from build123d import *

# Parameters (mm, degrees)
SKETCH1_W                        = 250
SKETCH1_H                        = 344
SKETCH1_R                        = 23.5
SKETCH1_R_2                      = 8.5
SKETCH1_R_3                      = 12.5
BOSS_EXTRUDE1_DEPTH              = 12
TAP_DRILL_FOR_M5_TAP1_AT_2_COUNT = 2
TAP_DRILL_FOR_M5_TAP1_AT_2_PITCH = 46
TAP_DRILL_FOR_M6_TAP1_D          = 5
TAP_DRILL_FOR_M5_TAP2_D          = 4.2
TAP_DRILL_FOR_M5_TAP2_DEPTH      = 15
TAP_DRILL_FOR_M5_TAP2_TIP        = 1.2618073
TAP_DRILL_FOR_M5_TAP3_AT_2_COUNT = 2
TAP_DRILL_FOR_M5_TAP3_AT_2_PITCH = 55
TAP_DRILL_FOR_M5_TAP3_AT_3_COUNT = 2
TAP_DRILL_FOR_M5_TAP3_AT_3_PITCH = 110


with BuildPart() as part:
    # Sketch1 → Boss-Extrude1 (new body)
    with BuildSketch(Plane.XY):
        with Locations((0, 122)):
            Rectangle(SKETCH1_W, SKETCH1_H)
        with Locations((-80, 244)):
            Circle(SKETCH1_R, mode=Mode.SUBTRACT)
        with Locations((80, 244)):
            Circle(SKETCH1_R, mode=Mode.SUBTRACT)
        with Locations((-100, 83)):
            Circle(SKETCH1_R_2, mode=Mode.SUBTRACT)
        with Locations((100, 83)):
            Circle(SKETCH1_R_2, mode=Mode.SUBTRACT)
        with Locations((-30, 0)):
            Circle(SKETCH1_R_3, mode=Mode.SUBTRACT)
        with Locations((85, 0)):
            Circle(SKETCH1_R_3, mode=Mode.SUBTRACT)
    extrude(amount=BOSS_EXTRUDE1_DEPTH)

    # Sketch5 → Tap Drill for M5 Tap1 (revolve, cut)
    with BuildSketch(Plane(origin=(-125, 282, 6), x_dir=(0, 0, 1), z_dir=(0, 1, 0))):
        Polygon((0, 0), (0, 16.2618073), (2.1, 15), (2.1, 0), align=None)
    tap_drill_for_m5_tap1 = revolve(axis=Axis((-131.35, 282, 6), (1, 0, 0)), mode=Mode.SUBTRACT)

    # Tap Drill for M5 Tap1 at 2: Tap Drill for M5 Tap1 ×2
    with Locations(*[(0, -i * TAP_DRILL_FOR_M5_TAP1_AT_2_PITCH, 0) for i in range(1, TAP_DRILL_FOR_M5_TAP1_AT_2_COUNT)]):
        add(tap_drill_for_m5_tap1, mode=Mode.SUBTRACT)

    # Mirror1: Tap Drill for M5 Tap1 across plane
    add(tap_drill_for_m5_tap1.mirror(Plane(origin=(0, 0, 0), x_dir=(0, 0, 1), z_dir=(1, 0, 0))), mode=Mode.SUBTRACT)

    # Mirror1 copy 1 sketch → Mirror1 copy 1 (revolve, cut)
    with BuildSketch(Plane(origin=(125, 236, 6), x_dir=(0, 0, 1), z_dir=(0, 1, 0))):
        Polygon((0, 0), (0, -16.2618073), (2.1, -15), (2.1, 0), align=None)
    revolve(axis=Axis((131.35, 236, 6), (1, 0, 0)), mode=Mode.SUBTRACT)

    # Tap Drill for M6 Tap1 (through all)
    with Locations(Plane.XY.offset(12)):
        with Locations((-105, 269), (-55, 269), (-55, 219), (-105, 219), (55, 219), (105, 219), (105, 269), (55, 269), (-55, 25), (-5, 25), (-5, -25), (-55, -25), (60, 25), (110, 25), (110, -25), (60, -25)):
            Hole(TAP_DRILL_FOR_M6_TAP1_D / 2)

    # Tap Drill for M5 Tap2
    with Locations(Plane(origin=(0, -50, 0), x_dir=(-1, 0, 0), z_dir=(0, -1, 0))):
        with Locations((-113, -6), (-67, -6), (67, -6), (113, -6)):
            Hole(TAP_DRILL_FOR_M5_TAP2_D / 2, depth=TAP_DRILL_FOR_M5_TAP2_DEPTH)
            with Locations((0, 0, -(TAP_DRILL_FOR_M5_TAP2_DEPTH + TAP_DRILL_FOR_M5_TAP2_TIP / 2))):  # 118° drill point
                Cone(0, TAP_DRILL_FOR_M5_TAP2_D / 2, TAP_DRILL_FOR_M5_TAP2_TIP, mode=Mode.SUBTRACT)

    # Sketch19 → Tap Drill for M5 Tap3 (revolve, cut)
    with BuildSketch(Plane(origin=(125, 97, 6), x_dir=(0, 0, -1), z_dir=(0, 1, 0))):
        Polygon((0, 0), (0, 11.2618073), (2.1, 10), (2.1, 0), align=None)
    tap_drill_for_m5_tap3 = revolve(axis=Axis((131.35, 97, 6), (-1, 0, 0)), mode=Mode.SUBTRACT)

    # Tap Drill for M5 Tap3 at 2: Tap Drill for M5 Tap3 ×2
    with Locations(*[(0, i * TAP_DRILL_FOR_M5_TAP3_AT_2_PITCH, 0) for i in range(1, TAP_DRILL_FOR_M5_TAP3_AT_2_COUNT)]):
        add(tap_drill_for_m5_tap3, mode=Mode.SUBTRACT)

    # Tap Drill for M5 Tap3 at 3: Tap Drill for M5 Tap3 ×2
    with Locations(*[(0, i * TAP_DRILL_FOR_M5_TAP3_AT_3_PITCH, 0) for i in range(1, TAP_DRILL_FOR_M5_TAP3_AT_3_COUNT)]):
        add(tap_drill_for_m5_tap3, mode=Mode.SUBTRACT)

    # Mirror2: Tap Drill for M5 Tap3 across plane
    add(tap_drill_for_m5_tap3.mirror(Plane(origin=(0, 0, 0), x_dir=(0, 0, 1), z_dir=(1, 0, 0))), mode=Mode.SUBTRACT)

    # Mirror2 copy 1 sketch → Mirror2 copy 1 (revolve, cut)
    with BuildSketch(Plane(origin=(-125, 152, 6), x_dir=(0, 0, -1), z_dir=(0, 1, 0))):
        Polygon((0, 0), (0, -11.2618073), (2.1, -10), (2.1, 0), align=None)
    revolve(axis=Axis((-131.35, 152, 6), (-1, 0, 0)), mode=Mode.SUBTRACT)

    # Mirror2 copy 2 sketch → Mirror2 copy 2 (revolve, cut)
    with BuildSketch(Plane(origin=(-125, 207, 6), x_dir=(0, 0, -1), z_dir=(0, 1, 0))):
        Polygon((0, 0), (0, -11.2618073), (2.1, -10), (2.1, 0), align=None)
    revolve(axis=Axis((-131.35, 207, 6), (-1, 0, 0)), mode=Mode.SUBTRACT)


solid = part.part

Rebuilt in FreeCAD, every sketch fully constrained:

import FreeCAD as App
import Part
import Sketcher

V = App.Vector
Q = App.Units.Quantity


def add_polygon(sketch, points):
    """Adds a closed chain of lines whose ends are joined by coincident constraints."""
    first, n = sketch.GeometryCount, len(points)
    for a, b in zip(points, points[1:] + points[:1]):
        sketch.addGeometry(Part.LineSegment(App.Vector(*a, 0), App.Vector(*b, 0)), False)
    for i in range(n):
        sketch.addConstraint(Sketcher.Constraint("Coincident", first + i, 2, first + (i + 1) % n, 1))

doc = App.newDocument("Part")
body = doc.addObject("PartDesign::Body", "Body")

# Sketch on XY plane
sketch1 = body.newObject("Sketcher::SketchObject", "Sketch")
sketch1.AttachmentSupport = (doc.getObject("XY_Plane"), [""])
sketch1.MapMode = "FlatFace"
add_polygon(sketch1, [(-125, 294), (-125, -50), (125, -50), (125, 294)])  # lines 0-3
sketch1.addGeometry(Part.Circle(V(-30, 0, 0), V(0, 0, 1), 12), False)  # 4
sketch1.addGeometry(Part.Circle(V(-100, 83, 0), V(0, 0, 1), 8), False)  # 5
sketch1.addGeometry(Part.Circle(V(85, 0, 0), V(0, 0, 1), 12), False)  # 6
sketch1.addGeometry(Part.Circle(V(100, 83, 0), V(0, 0, 1), 8), False)  # 7
sketch1.addGeometry(Part.Circle(V(-80, 244, 0), V(0, 0, 1), 24), False)  # 8
sketch1.addGeometry(Part.Circle(V(80, 244, 0), V(0, 0, 1), 24), False)  # 9
sketch1.addConstraint(Sketcher.Constraint("Vertical", 0))
sketch1.addConstraint(Sketcher.Constraint("Horizontal", 1))
sketch1.addConstraint(Sketcher.Constraint("Vertical", 2))
sketch1.addConstraint(Sketcher.Constraint("Horizontal", 3))
sketch1.addConstraint(Sketcher.Constraint("Equal", 4, 6))
sketch1.addConstraint(Sketcher.Constraint("Equal", 5, 7))
sketch1.addConstraint(Sketcher.Constraint("Equal", 8, 9))
sketch1.addConstraint(Sketcher.Constraint("Symmetric", 5, 3, 7, 3, -2))
sketch1.addConstraint(Sketcher.Constraint("Symmetric", 8, 3, 9, 3, -2))
sketch1.addConstraint(Sketcher.Constraint("PointOnObject", 4, 3, -1))
sketch1.addConstraint(Sketcher.Constraint("PointOnObject", 6, 3, -1))
sketch1.addConstraint(Sketcher.Constraint("Diameter", 4, 25.0))
sketch1.addConstraint(Sketcher.Constraint("Diameter", 5, 17.0))
sketch1.addConstraint(Sketcher.Constraint("Diameter", 8, 47.0))
sketch1.addConstraint(Sketcher.Constraint("DistanceX", 1, 1, 1, 2, 250.0))
sketch1.addConstraint(Sketcher.Constraint("DistanceY", 0, 2, 0, 1, 344.0))
sketch1.addConstraint(Sketcher.Constraint("DistanceX", 4, 3, -1, 1, 30.0))
sketch1.addConstraint(Sketcher.Constraint("DistanceX", 5, 3, -1, 1, 100.0))
sketch1.addConstraint(Sketcher.Constraint("DistanceY", -1, 1, 5, 3, 83.0))
sketch1.addConstraint(Sketcher.Constraint("DistanceX", -1, 1, 6, 3, 85.0))
sketch1.addConstraint(Sketcher.Constraint("DistanceX", 8, 3, -1, 1, 80.0))
sketch1.addConstraint(Sketcher.Constraint("DistanceY", -1, 1, 8, 3, 244.0))
sketch1.addConstraint(Sketcher.Constraint("DistanceX", 0, 2, -1, 1, 125.0))
sketch1.addConstraint(Sketcher.Constraint("DistanceY", 0, 2, -1, 1, 50.0))
pad1 = body.newObject("PartDesign::Pad", "Pad")
pad1.Profile = sketch1
pad1.Length = 12

# Sketch on XZ plane
sketch2 = body.newObject("Sketcher::SketchObject", "Sketch001")
sketch2.AttachmentSupport = (doc.getObject("XZ_Plane"), [""])
sketch2.MapMode = "FlatFace"
sketch2.AttachmentOffset = App.Placement(V(0, 0, -282), App.Rotation())
add_polygon(sketch2, [(-108.7, 6), (-125, 6), (-125, 8.1), (-110, 8.1)])  # lines 0-3
sketch2.addGeometry(Part.LineSegment(V(-125, 6, 0), V(-108.7, 6, 0)), True)  # axis
sketch2.addConstraint(Sketcher.Constraint("Horizontal", 0))
sketch2.addConstraint(Sketcher.Constraint("Vertical", 1))
sketch2.addConstraint(Sketcher.Constraint("Horizontal", 2))
sketch2.addConstraint(Sketcher.Constraint("Horizontal", 4))
sketch2.addConstraint(Sketcher.Constraint("Coincident", 4, 1, 0, 2))
sketch2.addConstraint(Sketcher.Constraint("Equal", 0, 4))
sketch2.addConstraint(Sketcher.Constraint("DistanceX", 2, 1, 2, 2, 15.0))
sketch2.addConstraint(Sketcher.Constraint("Angle", 3, Q("-59 deg")))
sketch2.addConstraint(Sketcher.Constraint("DistanceY", 1, 1, 1, 2, 2.1))
sketch2.addConstraint(Sketcher.Constraint("DistanceX", 0, 2, -1, 1, 125.0))
sketch2.addConstraint(Sketcher.Constraint("DistanceY", -1, 1, 0, 2, 6.0))
groove = body.newObject("PartDesign::Groove", "Groove")
groove.Profile = sketch2
groove.ReferenceAxis = (sketch2, ["Axis0"])
groove.Angle = 360
doc.recompute()

linearpattern = body.newObject("PartDesign::LinearPattern", "LinearPattern")
linearpattern.Originals = [groove]
linearpattern.Direction = (doc.getObject("Y_Axis"), [""])
linearpattern.Mode = "offset"
linearpattern.Offset = 46
linearpattern.Occurrences = 2
linearpattern.Reversed = True
body.Tip = linearpattern
doc.recompute()

mirrored = body.newObject("PartDesign::Mirrored", "Mirrored")
mirrored.Originals = [groove]
mirrored.MirrorPlane = (doc.getObject("YZ_Plane"), [""])
body.Tip = mirrored

# Sketch on XZ plane
sketch3 = body.newObject("Sketcher::SketchObject", "Sketch002")
sketch3.AttachmentSupport = (doc.getObject("XZ_Plane"), [""])
sketch3.MapMode = "FlatFace"
sketch3.AttachmentOffset = App.Placement(V(0, 0, -236), App.Rotation())
add_polygon(sketch3, [(125, 6), (108.7, 6), (110, 8.1), (125, 8.1)])  # lines 0-3
sketch3.addGeometry(Part.LineSegment(V(108.7, 6, 0), V(125, 6, 0)), True)  # axis
sketch3.addConstraint(Sketcher.Constraint("Horizontal", 0))
sketch3.addConstraint(Sketcher.Constraint("Horizontal", 2))
sketch3.addConstraint(Sketcher.Constraint("Vertical", 3))
sketch3.addConstraint(Sketcher.Constraint("Horizontal", 4))
sketch3.addConstraint(Sketcher.Constraint("Coincident", 4, 1, 0, 2))
sketch3.addConstraint(Sketcher.Constraint("Vertical", 2, 2, 4, 2))
sketch3.addConstraint(Sketcher.Constraint("DistanceX", 2, 1, 2, 2, 15.0))
sketch3.addConstraint(Sketcher.Constraint("Angle", 1, Q("59 deg")))
sketch3.addConstraint(Sketcher.Constraint("DistanceY", 3, 2, 3, 1, 2.1))
sketch3.addConstraint(Sketcher.Constraint("DistanceY", -1, 1, 0, 2, 6.0))
sketch3.addConstraint(Sketcher.Constraint("DistanceX", -1, 1, 1, 2, 110.0))
groove2 = body.newObject("PartDesign::Groove", "Groove001")
groove2.Profile = sketch3
groove2.ReferenceAxis = (sketch3, ["Axis0"])
groove2.Angle = 360

# Sketch on XY plane
sketch4 = body.newObject("Sketcher::SketchObject", "Sketch003")
sketch4.AttachmentSupport = (doc.getObject("XY_Plane"), [""])
sketch4.MapMode = "FlatFace"
sketch4.AttachmentOffset = App.Placement(V(0, 0, 12), App.Rotation())
sketch4.addGeometry(Part.Circle(V(-105, 269, 0), V(0, 0, 1), 2.5), False)
sketch4.addGeometry(Part.Circle(V(-55, 269, 0), V(0, 0, 1), 2.5), False)
sketch4.addGeometry(Part.Circle(V(-55, 219, 0), V(0, 0, 1), 2.5), False)
sketch4.addGeometry(Part.Circle(V(-105, 219, 0), V(0, 0, 1), 2.5), False)
sketch4.addGeometry(Part.Circle(V(55, 219, 0), V(0, 0, 1), 2.5), False)
sketch4.addGeometry(Part.Circle(V(105, 219, 0), V(0, 0, 1), 2.5), False)
sketch4.addGeometry(Part.Circle(V(105, 269, 0), V(0, 0, 1), 2.5), False)
sketch4.addGeometry(Part.Circle(V(55, 269, 0), V(0, 0, 1), 2.5), False)
sketch4.addGeometry(Part.Circle(V(-55, 25, 0), V(0, 0, 1), 2.5), False)
sketch4.addGeometry(Part.Circle(V(-5, 25, 0), V(0, 0, 1), 2.5), False)
sketch4.addGeometry(Part.Circle(V(-5, -25, 0), V(0, 0, 1), 2.5), False)
sketch4.addGeometry(Part.Circle(V(-55, -25, 0), V(0, 0, 1), 2.5), False)
sketch4.addGeometry(Part.Circle(V(60, 25, 0), V(0, 0, 1), 2.5), False)
sketch4.addGeometry(Part.Circle(V(110, 25, 0), V(0, 0, 1), 2.5), False)
sketch4.addGeometry(Part.Circle(V(110, -25, 0), V(0, 0, 1), 2.5), False)
sketch4.addGeometry(Part.Circle(V(60, -25, 0), V(0, 0, 1), 2.5), False)
sketch4.addConstraint(Sketcher.Constraint("Equal", 0, 1))
sketch4.addConstraint(Sketcher.Constraint("Equal", 1, 2))
sketch4.addConstraint(Sketcher.Constraint("Equal", 2, 3))
sketch4.addConstraint(Sketcher.Constraint("Equal", 3, 4))
sketch4.addConstraint(Sketcher.Constraint("Equal", 4, 5))
sketch4.addConstraint(Sketcher.Constraint("Equal", 5, 6))
sketch4.addConstraint(Sketcher.Constraint("Equal", 6, 7))
sketch4.addConstraint(Sketcher.Constraint("Equal", 7, 8))
sketch4.addConstraint(Sketcher.Constraint("Equal", 8, 9))
sketch4.addConstraint(Sketcher.Constraint("Equal", 9, 10))
sketch4.addConstraint(Sketcher.Constraint("Equal", 10, 11))
sketch4.addConstraint(Sketcher.Constraint("Equal", 11, 12))
sketch4.addConstraint(Sketcher.Constraint("Equal", 12, 13))
sketch4.addConstraint(Sketcher.Constraint("Equal", 13, 14))
sketch4.addConstraint(Sketcher.Constraint("Equal", 14, 15))
sketch4.addConstraint(Sketcher.Constraint("Symmetric", 2, 3, 4, 3, -2))
sketch4.addConstraint(Sketcher.Constraint("Symmetric", 3, 3, 5, 3, -2))
sketch4.addConstraint(Sketcher.Constraint("Symmetric", 0, 3, 6, 3, -2))
sketch4.addConstraint(Sketcher.Constraint("Symmetric", 1, 3, 7, 3, -2))
sketch4.addConstraint(Sketcher.Constraint("Symmetric", 9, 3, 10, 3, -1))
sketch4.addConstraint(Sketcher.Constraint("Symmetric", 8, 3, 11, 3, -1))
sketch4.addConstraint(Sketcher.Constraint("Symmetric", 13, 3, 14, 3, -1))
sketch4.addConstraint(Sketcher.Constraint("Symmetric", 12, 3, 15, 3, -1))
sketch4.addConstraint(Sketcher.Constraint("Horizontal", 0, 3, 1, 3))
sketch4.addConstraint(Sketcher.Constraint("Horizontal", 2, 3, 3, 3))
sketch4.addConstraint(Sketcher.Constraint("Horizontal", 8, 3, 9, 3))
sketch4.addConstraint(Sketcher.Constraint("Horizontal", 9, 3, 12, 3))
sketch4.addConstraint(Sketcher.Constraint("Horizontal", 12, 3, 13, 3))
sketch4.addConstraint(Sketcher.Constraint("Vertical", 1, 3, 2, 3))
sketch4.addConstraint(Sketcher.Constraint("Vertical", 0, 3, 3, 3))
sketch4.addConstraint(Sketcher.Constraint("Vertical", 2, 3, 8, 3))
sketch4.addConstraint(Sketcher.Constraint("Diameter", 0, 5.0))
sketch4.addConstraint(Sketcher.Constraint("DistanceX", 0, 3, -1, 1, 105.0))
sketch4.addConstraint(Sketcher.Constraint("DistanceY", -1, 1, 0, 3, 269.0))
sketch4.addConstraint(Sketcher.Constraint("DistanceX", 1, 3, -1, 1, 55.0))
sketch4.addConstraint(Sketcher.Constraint("DistanceY", -1, 1, 2, 3, 219.0))
sketch4.addConstraint(Sketcher.Constraint("DistanceY", -1, 1, 8, 3, 25.0))
sketch4.addConstraint(Sketcher.Constraint("DistanceX", 9, 3, -1, 1, 5.0))
sketch4.addConstraint(Sketcher.Constraint("DistanceX", -1, 1, 12, 3, 60.0))
sketch4.addConstraint(Sketcher.Constraint("DistanceX", -1, 1, 13, 3, 110.0))
doc.recompute()
hole = body.newObject("PartDesign::Hole", "Hole")
hole.Profile = sketch4
hole.ThreadType = "None"
hole.Diameter = 5
hole.DepthType = "ThroughAll"

# Sketch on XZ plane
sketch5 = body.newObject("Sketcher::SketchObject", "Sketch004")
sketch5.AttachmentSupport = (doc.getObject("XZ_Plane"), [""])
sketch5.MapMode = "FlatFace"
sketch5.AttachmentOffset = App.Placement(V(0, 0, 50), App.Rotation())
sketch5.addGeometry(Part.Circle(V(113, 6, 0), V(0, 0, 1), 2.1), False)
sketch5.addGeometry(Part.Circle(V(67, 6, 0), V(0, 0, 1), 2.1), False)
sketch5.addGeometry(Part.Circle(V(-67, 6, 0), V(0, 0, 1), 2.1), False)
sketch5.addGeometry(Part.Circle(V(-113, 6, 0), V(0, 0, 1), 2.1), False)
sketch5.addConstraint(Sketcher.Constraint("Equal", 0, 1))
sketch5.addConstraint(Sketcher.Constraint("Equal", 1, 2))
sketch5.addConstraint(Sketcher.Constraint("Equal", 2, 3))
sketch5.addConstraint(Sketcher.Constraint("Symmetric", 1, 3, 2, 3, -2))
sketch5.addConstraint(Sketcher.Constraint("Symmetric", 0, 3, 3, 3, -2))
sketch5.addConstraint(Sketcher.Constraint("Horizontal", 0, 3, 1, 3))
sketch5.addConstraint(Sketcher.Constraint("Diameter", 0, 4.2))
sketch5.addConstraint(Sketcher.Constraint("DistanceX", -1, 1, 0, 3, 113.0))
sketch5.addConstraint(Sketcher.Constraint("DistanceY", -1, 1, 0, 3, 6.0))
sketch5.addConstraint(Sketcher.Constraint("DistanceX", -1, 1, 1, 3, 67.0))
doc.recompute()
hole2 = body.newObject("PartDesign::Hole", "Hole001")
hole2.Profile = sketch5
hole2.ThreadType = "None"
hole2.Diameter = 4.2
hole2.DepthType = "Dimension"
hole2.Depth = 15
hole2.DrillPoint = "Angled"
hole2.DrillPointAngle = 118

# Sketch on XZ plane
sketch6 = body.newObject("Sketcher::SketchObject", "Sketch005")
sketch6.AttachmentSupport = (doc.getObject("XZ_Plane"), [""])
sketch6.MapMode = "FlatFace"
sketch6.AttachmentOffset = App.Placement(V(0, 0, -97), App.Rotation())
add_polygon(sketch6, [(113.7, 6), (125, 6), (125, 3.9), (115, 3.9)])  # lines 0-3
sketch6.addGeometry(Part.LineSegment(V(125, 6, 0), V(113.7, 6, 0)), True)  # axis
sketch6.addConstraint(Sketcher.Constraint("Horizontal", 0))
sketch6.addConstraint(Sketcher.Constraint("Vertical", 1))
sketch6.addConstraint(Sketcher.Constraint("Horizontal", 2))
sketch6.addConstraint(Sketcher.Constraint("Horizontal", 4))
sketch6.addConstraint(Sketcher.Constraint("Coincident", 4, 1, 0, 2))
sketch6.addConstraint(Sketcher.Constraint("Equal", 0, 4))
sketch6.addConstraint(Sketcher.Constraint("DistanceX", 2, 2, 2, 1, 10.0))
sketch6.addConstraint(Sketcher.Constraint("Angle", 3, Q("121 deg")))
sketch6.addConstraint(Sketcher.Constraint("DistanceY", 1, 2, 1, 1, 2.1))
sketch6.addConstraint(Sketcher.Constraint("DistanceX", -1, 1, 0, 2, 125.0))
sketch6.addConstraint(Sketcher.Constraint("DistanceY", -1, 1, 0, 2, 6.0))
groove3 = body.newObject("PartDesign::Groove", "Groove002")
groove3.Profile = sketch6
groove3.ReferenceAxis = (sketch6, ["Axis0"])
groove3.Angle = 360
doc.recompute()

linearpattern2 = body.newObject("PartDesign::LinearPattern", "LinearPattern001")
linearpattern2.Originals = [groove3]
linearpattern2.Direction = (doc.getObject("Y_Axis"), [""])
linearpattern2.Mode = "offset"
linearpattern2.Offset = 55
linearpattern2.Occurrences = 2
body.Tip = linearpattern2
doc.recompute()

linearpattern3 = body.newObject("PartDesign::LinearPattern", "LinearPattern002")
linearpattern3.Originals = [groove3]
linearpattern3.Direction = (doc.getObject("Y_Axis"), [""])
linearpattern3.Mode = "offset"
linearpattern3.Offset = 110
linearpattern3.Occurrences = 2
body.Tip = linearpattern3
doc.recompute()

mirrored2 = body.newObject("PartDesign::Mirrored", "Mirrored001")
mirrored2.Originals = [groove3]
mirrored2.MirrorPlane = (doc.getObject("YZ_Plane"), [""])
body.Tip = mirrored2

# Sketch on XZ plane
sketch7 = body.newObject("Sketcher::SketchObject", "Sketch006")
sketch7.AttachmentSupport = (doc.getObject("XZ_Plane"), [""])
sketch7.MapMode = "FlatFace"
sketch7.AttachmentOffset = App.Placement(V(0, 0, -152), App.Rotation())
add_polygon(sketch7, [(-125, 6), (-113.7, 6), (-115, 3.9), (-125, 3.9)])  # lines 0-3
sketch7.addGeometry(Part.LineSegment(V(-113.7, 6, 0), V(-125, 6, 0)), True)  # axis
sketch7.addConstraint(Sketcher.Constraint("Horizontal", 0))
sketch7.addConstraint(Sketcher.Constraint("Horizontal", 2))
sketch7.addConstraint(Sketcher.Constraint("Vertical", 3))
sketch7.addConstraint(Sketcher.Constraint("Horizontal", 4))
sketch7.addConstraint(Sketcher.Constraint("Coincident", 4, 1, 0, 2))
sketch7.addConstraint(Sketcher.Constraint("Vertical", 2, 2, 4, 2))
sketch7.addConstraint(Sketcher.Constraint("DistanceX", 2, 2, 2, 1, 10.0))
sketch7.addConstraint(Sketcher.Constraint("Angle", 1, Q("-121 deg")))
sketch7.addConstraint(Sketcher.Constraint("DistanceY", 3, 1, 3, 2, 2.1))
sketch7.addConstraint(Sketcher.Constraint("DistanceY", -1, 1, 0, 2, 6.0))
sketch7.addConstraint(Sketcher.Constraint("DistanceX", 1, 2, -1, 1, 115.0))
groove4 = body.newObject("PartDesign::Groove", "Groove003")
groove4.Profile = sketch7
groove4.ReferenceAxis = (sketch7, ["Axis0"])
groove4.Angle = 360

# Sketch on XZ plane
sketch8 = body.newObject("Sketcher::SketchObject", "Sketch007")
sketch8.AttachmentSupport = (doc.getObject("XZ_Plane"), [""])
sketch8.MapMode = "FlatFace"
sketch8.AttachmentOffset = App.Placement(V(0, 0, -207), App.Rotation())
add_polygon(sketch8, [(-125, 6), (-113.7, 6), (-115, 3.9), (-125, 3.9)])  # lines 0-3
sketch8.addGeometry(Part.LineSegment(V(-113.7, 6, 0), V(-125, 6, 0)), True)  # axis
sketch8.addConstraint(Sketcher.Constraint("Horizontal", 0))
sketch8.addConstraint(Sketcher.Constraint("Horizontal", 2))
sketch8.addConstraint(Sketcher.Constraint("Vertical", 3))
sketch8.addConstraint(Sketcher.Constraint("Horizontal", 4))
sketch8.addConstraint(Sketcher.Constraint("Coincident", 4, 1, 0, 2))
sketch8.addConstraint(Sketcher.Constraint("Vertical", 2, 2, 4, 2))
sketch8.addConstraint(Sketcher.Constraint("DistanceX", 2, 2, 2, 1, 10.0))
sketch8.addConstraint(Sketcher.Constraint("Angle", 1, Q("-121 deg")))
sketch8.addConstraint(Sketcher.Constraint("DistanceY", 3, 1, 3, 2, 2.1))
sketch8.addConstraint(Sketcher.Constraint("DistanceY", -1, 1, 0, 2, 6.0))
sketch8.addConstraint(Sketcher.Constraint("DistanceX", 1, 2, -1, 1, 115.0))
groove5 = body.newObject("PartDesign::Groove", "Groove004")
groove5.Profile = sketch8
groove5.ReferenceAxis = (sketch8, ["Axis0"])
groove5.Angle = 360

doc.recompute()
